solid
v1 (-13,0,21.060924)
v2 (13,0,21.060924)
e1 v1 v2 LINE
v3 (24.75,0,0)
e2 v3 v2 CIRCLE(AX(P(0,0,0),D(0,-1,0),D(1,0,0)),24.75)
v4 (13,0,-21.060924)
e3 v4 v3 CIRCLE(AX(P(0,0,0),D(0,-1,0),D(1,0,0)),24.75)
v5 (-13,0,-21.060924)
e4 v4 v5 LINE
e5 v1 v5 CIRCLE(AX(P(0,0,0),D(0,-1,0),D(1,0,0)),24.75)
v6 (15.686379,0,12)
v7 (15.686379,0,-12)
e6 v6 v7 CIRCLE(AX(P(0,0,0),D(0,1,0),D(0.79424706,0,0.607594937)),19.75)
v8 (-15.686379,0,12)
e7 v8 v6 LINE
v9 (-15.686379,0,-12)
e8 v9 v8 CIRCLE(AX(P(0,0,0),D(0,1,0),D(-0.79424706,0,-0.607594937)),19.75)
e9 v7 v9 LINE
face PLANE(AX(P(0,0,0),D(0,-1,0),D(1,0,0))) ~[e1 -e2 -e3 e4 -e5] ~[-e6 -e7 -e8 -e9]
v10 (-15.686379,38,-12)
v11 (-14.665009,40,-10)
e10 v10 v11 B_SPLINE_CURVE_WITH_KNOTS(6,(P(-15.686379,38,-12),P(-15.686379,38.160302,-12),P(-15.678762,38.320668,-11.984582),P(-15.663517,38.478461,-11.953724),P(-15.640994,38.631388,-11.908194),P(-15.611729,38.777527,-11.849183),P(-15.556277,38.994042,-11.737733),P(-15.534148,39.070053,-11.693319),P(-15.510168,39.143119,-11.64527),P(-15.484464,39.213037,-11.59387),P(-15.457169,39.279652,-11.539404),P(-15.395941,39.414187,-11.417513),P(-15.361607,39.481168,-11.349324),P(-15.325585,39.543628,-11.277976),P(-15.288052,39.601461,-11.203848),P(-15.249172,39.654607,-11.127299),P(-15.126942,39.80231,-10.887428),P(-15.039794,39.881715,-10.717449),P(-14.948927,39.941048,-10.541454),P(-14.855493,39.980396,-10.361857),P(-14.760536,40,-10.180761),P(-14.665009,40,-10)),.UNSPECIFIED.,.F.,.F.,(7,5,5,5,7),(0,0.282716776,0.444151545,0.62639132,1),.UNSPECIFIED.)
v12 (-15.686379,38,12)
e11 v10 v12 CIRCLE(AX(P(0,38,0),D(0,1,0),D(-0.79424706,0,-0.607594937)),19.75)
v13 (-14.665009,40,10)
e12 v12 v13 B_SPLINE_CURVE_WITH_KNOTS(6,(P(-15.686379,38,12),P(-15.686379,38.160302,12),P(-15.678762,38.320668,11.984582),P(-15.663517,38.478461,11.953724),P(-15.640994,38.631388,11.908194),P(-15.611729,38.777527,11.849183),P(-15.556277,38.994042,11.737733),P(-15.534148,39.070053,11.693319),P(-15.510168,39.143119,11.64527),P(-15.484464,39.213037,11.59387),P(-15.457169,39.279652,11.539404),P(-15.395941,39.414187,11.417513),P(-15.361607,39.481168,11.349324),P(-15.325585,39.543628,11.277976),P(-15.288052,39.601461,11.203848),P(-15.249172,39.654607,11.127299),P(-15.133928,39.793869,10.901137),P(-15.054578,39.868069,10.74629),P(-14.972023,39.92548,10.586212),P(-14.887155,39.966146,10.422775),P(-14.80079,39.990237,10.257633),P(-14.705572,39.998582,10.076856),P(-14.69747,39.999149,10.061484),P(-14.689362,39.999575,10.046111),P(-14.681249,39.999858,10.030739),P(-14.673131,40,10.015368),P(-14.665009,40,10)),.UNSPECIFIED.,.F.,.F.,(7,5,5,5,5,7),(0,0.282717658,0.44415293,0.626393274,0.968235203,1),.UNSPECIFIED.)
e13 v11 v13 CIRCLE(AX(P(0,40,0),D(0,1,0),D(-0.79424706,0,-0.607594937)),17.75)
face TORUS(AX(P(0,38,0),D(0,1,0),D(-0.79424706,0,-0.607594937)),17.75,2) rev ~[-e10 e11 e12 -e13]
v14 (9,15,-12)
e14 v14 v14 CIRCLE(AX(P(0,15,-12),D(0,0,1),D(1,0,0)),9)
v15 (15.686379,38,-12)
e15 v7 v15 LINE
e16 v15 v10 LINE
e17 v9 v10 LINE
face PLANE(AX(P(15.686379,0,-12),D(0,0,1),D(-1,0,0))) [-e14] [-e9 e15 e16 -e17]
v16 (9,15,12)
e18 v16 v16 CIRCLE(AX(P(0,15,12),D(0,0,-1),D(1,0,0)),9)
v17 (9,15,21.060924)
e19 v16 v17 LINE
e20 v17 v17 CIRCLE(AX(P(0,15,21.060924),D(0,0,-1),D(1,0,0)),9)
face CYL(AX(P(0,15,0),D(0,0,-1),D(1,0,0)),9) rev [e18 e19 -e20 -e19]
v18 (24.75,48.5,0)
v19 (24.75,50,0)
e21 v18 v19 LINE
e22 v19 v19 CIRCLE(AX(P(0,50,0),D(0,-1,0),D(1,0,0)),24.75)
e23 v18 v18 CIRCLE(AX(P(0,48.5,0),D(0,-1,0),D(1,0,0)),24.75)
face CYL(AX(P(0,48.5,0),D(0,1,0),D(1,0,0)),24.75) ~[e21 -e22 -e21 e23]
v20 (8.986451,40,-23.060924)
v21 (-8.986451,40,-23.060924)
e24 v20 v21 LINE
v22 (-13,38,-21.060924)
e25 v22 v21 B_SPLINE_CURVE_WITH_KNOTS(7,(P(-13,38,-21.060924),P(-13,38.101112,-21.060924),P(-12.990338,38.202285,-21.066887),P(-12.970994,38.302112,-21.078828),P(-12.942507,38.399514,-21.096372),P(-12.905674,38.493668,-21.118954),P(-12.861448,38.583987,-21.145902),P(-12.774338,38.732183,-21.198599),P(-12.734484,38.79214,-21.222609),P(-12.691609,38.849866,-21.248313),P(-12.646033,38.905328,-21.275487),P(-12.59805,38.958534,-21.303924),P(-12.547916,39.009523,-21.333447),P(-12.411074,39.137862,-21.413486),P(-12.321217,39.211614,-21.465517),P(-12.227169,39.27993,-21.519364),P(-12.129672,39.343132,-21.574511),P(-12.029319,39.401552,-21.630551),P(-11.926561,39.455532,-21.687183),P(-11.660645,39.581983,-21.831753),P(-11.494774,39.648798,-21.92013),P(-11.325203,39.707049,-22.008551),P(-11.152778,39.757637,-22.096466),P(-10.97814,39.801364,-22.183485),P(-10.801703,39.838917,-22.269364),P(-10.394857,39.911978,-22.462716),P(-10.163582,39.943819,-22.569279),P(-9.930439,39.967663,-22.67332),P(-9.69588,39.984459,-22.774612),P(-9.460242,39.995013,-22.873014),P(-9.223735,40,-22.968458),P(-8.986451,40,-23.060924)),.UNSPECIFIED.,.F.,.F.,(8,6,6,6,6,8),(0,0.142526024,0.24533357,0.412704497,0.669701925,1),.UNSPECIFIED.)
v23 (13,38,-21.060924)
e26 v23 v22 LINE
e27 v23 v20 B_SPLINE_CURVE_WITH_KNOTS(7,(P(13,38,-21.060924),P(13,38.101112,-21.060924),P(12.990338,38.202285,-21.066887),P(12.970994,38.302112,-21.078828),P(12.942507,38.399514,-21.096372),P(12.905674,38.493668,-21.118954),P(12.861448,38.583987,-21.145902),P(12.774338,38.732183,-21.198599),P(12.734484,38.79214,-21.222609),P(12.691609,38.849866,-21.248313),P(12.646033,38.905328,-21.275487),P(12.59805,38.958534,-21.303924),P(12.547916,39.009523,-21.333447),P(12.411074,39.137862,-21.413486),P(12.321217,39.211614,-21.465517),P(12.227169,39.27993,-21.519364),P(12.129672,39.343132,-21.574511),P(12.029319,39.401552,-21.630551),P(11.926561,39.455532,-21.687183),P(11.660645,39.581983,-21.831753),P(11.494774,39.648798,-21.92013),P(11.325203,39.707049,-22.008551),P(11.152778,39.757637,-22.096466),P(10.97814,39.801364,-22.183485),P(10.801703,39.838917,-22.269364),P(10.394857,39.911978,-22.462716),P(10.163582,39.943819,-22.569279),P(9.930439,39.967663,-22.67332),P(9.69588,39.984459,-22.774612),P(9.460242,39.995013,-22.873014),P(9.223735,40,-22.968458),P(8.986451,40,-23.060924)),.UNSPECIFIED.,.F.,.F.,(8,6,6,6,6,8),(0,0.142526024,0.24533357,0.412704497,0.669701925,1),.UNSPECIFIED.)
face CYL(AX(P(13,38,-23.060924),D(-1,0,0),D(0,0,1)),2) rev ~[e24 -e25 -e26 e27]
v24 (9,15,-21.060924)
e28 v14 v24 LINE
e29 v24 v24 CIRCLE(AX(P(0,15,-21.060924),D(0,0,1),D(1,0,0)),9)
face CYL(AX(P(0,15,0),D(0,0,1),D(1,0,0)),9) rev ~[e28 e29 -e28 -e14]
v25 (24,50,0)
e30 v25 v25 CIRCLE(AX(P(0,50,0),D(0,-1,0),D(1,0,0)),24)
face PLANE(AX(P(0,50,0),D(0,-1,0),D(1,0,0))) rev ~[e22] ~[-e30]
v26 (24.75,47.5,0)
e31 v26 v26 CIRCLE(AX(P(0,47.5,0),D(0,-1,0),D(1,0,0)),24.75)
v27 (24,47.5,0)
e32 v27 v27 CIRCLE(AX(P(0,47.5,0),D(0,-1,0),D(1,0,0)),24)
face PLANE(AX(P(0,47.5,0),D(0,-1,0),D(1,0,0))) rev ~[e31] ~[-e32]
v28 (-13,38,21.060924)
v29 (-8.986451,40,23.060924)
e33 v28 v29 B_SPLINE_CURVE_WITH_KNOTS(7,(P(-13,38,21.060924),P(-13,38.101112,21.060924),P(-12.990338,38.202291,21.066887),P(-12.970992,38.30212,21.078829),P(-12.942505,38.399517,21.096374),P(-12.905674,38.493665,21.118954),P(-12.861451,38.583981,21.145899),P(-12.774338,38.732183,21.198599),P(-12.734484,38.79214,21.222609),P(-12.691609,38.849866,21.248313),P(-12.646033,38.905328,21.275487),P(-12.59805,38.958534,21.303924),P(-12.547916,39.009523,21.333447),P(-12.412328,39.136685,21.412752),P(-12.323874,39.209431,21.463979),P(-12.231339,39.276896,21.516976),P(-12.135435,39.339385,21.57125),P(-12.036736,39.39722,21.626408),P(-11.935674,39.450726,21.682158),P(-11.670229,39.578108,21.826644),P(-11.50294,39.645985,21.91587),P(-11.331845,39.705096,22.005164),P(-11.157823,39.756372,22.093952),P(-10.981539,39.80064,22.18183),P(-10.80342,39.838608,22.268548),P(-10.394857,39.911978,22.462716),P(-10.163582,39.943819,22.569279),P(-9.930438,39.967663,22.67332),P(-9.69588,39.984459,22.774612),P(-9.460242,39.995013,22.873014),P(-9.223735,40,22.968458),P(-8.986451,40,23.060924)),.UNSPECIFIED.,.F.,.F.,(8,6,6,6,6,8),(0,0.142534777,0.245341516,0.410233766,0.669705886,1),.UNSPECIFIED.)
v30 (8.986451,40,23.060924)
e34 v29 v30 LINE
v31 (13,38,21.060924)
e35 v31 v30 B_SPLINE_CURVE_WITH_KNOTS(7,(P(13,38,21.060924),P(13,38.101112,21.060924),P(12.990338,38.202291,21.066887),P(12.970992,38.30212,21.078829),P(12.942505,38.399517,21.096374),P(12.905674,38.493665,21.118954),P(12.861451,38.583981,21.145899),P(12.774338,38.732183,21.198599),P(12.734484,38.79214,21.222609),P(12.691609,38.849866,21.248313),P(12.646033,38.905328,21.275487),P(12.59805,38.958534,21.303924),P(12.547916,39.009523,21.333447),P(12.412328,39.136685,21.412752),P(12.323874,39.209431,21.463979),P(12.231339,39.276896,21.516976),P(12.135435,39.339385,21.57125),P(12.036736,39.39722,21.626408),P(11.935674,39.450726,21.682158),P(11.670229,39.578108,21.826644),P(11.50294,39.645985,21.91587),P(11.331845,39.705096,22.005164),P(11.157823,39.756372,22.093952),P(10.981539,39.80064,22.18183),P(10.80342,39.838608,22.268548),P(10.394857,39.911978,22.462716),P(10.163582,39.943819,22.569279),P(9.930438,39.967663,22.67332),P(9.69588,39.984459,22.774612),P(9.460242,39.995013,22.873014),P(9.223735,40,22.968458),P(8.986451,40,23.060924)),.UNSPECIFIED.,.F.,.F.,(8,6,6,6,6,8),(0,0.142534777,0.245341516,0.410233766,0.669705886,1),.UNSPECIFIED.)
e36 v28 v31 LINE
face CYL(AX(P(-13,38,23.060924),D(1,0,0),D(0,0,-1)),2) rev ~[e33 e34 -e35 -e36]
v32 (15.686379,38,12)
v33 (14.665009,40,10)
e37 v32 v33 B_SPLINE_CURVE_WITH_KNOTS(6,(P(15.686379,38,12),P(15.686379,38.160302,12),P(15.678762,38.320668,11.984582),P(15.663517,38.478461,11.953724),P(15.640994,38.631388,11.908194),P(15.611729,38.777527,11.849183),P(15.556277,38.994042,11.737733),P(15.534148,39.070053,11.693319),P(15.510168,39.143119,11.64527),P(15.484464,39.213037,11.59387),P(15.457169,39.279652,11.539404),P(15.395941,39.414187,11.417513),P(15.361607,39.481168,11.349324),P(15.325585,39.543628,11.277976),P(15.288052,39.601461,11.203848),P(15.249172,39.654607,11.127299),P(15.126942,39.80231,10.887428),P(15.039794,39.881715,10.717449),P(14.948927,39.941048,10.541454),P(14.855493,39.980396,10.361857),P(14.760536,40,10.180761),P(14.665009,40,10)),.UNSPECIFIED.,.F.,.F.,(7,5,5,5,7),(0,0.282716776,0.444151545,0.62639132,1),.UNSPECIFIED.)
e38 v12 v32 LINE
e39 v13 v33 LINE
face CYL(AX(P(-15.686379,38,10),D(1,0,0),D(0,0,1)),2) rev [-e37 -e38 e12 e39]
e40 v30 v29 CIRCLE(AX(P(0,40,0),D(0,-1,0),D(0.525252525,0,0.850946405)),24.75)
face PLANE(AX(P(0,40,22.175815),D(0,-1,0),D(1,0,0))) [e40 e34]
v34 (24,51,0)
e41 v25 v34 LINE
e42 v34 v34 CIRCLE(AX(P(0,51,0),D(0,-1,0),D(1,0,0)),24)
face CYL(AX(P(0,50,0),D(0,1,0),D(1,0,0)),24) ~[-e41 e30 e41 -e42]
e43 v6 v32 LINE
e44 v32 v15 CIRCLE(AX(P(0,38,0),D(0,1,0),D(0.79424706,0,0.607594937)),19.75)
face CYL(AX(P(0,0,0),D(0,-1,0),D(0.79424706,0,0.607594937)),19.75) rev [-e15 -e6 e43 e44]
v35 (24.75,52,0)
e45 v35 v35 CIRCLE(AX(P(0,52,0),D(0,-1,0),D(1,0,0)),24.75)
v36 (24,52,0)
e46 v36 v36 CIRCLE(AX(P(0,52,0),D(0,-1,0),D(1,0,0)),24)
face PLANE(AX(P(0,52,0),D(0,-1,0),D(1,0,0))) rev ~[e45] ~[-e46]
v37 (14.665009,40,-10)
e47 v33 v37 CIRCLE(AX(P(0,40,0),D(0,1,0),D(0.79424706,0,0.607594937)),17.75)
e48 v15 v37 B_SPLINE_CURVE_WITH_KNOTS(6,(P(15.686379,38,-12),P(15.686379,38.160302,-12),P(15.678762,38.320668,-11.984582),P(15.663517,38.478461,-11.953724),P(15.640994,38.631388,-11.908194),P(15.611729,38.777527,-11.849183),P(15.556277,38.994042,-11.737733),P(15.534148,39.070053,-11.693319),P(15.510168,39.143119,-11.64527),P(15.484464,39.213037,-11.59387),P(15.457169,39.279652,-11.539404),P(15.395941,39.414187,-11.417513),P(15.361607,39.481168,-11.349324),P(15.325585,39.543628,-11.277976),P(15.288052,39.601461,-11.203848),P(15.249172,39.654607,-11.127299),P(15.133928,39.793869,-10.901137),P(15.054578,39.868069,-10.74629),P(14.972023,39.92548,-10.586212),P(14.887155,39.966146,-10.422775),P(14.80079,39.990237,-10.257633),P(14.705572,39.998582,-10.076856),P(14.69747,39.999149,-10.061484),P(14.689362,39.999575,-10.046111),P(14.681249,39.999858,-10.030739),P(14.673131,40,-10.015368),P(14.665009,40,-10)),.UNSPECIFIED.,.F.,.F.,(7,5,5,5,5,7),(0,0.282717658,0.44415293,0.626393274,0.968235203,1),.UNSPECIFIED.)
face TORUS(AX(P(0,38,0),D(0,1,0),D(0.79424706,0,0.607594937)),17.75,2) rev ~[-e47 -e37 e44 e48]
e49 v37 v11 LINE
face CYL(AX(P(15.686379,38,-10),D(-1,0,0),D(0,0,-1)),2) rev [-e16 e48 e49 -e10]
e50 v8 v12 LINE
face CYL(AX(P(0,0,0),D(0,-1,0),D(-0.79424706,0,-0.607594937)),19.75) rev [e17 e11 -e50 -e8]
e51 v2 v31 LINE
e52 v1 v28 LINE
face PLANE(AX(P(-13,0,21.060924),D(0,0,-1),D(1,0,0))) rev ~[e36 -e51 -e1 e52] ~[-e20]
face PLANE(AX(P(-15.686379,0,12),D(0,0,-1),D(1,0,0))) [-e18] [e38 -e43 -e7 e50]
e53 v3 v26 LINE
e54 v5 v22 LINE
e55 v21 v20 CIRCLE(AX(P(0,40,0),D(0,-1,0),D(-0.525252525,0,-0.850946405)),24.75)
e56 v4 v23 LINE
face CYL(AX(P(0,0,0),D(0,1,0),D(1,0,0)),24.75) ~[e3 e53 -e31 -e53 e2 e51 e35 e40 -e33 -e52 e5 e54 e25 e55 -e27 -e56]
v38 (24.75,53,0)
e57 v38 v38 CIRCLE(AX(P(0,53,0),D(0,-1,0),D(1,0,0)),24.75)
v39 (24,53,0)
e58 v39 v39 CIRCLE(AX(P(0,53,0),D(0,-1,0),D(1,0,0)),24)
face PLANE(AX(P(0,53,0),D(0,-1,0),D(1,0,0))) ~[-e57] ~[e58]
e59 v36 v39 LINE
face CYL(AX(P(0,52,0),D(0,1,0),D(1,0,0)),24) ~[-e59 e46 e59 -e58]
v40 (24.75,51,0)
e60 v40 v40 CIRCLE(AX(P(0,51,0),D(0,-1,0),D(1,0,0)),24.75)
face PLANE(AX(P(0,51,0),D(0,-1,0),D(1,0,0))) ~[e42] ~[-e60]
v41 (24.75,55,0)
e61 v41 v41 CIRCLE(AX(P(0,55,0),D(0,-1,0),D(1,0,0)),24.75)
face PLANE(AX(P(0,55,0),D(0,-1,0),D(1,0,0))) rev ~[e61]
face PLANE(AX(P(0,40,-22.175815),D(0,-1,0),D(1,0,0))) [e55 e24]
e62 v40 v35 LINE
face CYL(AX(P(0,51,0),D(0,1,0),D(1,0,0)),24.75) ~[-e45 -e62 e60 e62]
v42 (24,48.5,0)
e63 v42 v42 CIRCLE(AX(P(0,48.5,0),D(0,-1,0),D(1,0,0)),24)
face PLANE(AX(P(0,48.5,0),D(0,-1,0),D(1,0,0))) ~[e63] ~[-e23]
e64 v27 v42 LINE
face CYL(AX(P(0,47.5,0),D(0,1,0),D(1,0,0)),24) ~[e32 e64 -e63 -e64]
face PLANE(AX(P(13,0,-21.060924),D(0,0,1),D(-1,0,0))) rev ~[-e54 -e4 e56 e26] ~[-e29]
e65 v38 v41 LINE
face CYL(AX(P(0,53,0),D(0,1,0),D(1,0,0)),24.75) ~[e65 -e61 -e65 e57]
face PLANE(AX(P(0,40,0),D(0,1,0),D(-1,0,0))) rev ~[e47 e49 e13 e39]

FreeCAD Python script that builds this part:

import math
import FreeCAD as App
import Part
import Sketcher

V = App.Vector
Q = App.Units.Quantity


def edges_at(feature, points):
    """Names of the edges that pass closest to the given points."""
    edges = feature.Shape.Edges
    near = lambda p: min(range(len(edges)), key=lambda i: edges[i].distToShape(Part.Vertex(*p))[0])
    return sorted({f"Edge{near(p) + 1}" for p in points})

doc = App.newDocument("Part")
body = doc.addObject("PartDesign::Body", "Body")

sketch1 = body.newObject("Sketcher::SketchObject", "Sketch")
sketch1.AttachmentSupport = (doc.getObject("XY_Plane"), [""])
sketch1.MapMode = "FlatFace"
sketch1.addGeometry(Part.LineSegment(V(0, 0, 0), V(24.8, 0, 0)), False)
sketch1.addGeometry(Part.LineSegment(V(24.8, 0, 0), V(24.8, 47.5, 0)), False)
sketch1.addGeometry(Part.LineSegment(V(24.8, 47.5, 0), V(24, 47.5, 0)), False)
sketch1.addGeometry(Part.LineSegment(V(24, 47.5, 0), V(24, 48.5, 0)), False)
sketch1.addGeometry(Part.LineSegment(V(24, 48.5, 0), V(24.8, 48.5, 0)), False)
sketch1.addGeometry(Part.LineSegment(V(24.8, 48.5, 0), V(24.8, 50, 0)), False)
sketch1.addGeometry(Part.LineSegment(V(24.8, 50, 0), V(24, 50, 0)), False)
sketch1.addGeometry(Part.LineSegment(V(24, 50, 0), V(24, 51, 0)), False)
sketch1.addGeometry(Part.LineSegment(V(24, 51, 0), V(24.8, 51, 0)), False)
sketch1.addGeometry(Part.LineSegment(V(24.8, 51, 0), V(24.8, 52, 0)), False)
sketch1.addGeometry(Part.LineSegment(V(24.8, 52, 0), V(24, 52, 0)), False)
sketch1.addGeometry(Part.LineSegment(V(24, 52, 0), V(24, 53, 0)), False)
sketch1.addGeometry(Part.LineSegment(V(24, 53, 0), V(24.8, 53, 0)), False)
sketch1.addGeometry(Part.LineSegment(V(24.8, 53, 0), V(24.8, 55, 0)), False)
sketch1.addGeometry(Part.LineSegment(V(24.8, 55, 0), V(0, 55, 0)), False)
sketch1.addGeometry(Part.LineSegment(V(0, 55, 0), V(0, 0, 0)), False)
sketch1.addConstraint(Sketcher.Constraint("Coincident", 0, 2, 1, 1))
sketch1.addConstraint(Sketcher.Constraint("Coincident", 1, 2, 2, 1))
sketch1.addConstraint(Sketcher.Constraint("Coincident", 2, 2, 3, 1))
sketch1.addConstraint(Sketcher.Constraint("Coincident", 3, 2, 4, 1))
sketch1.addConstraint(Sketcher.Constraint("Coincident", 4, 2, 5, 1))
sketch1.addConstraint(Sketcher.Constraint("Coincident", 5, 2, 6, 1))
sketch1.addConstraint(Sketcher.Constraint("Coincident", 6, 2, 7, 1))
sketch1.addConstraint(Sketcher.Constraint("Coincident", 7, 2, 8, 1))
sketch1.addConstraint(Sketcher.Constraint("Coincident", 8, 2, 9, 1))
sketch1.addConstraint(Sketcher.Constraint("Coincident", 9, 2, 10, 1))
sketch1.addConstraint(Sketcher.Constraint("Coincident", 10, 2, 11, 1))
sketch1.addConstraint(Sketcher.Constraint("Coincident", 11, 2, 12, 1))
sketch1.addConstraint(Sketcher.Constraint("Coincident", 12, 2, 13, 1))
sketch1.addConstraint(Sketcher.Constraint("Coincident", 13, 2, 14, 1))
sketch1.addConstraint(Sketcher.Constraint("Coincident", 14, 2, 15, 1))
sketch1.addConstraint(Sketcher.Constraint("Coincident", 15, 2, 0, 1))
sketch1.addConstraint(Sketcher.Constraint("Horizontal", 0))
sketch1.addConstraint(Sketcher.Constraint("Vertical", 1))
sketch1.addConstraint(Sketcher.Constraint("Horizontal", 2))
sketch1.addConstraint(Sketcher.Constraint("Vertical", 3))
sketch1.addConstraint(Sketcher.Constraint("Horizontal", 4))
sketch1.addConstraint(Sketcher.Constraint("Vertical", 5))
sketch1.addConstraint(Sketcher.Constraint("Horizontal", 6))
sketch1.addConstraint(Sketcher.Constraint("Vertical", 7))
sketch1.addConstraint(Sketcher.Constraint("Horizontal", 8))
sketch1.addConstraint(Sketcher.Constraint("Vertical", 9))
sketch1.addConstraint(Sketcher.Constraint("Horizontal", 10))
sketch1.addConstraint(Sketcher.Constraint("Vertical", 11))
sketch1.addConstraint(Sketcher.Constraint("Horizontal", 12))
sketch1.addConstraint(Sketcher.Constraint("Vertical", 13))
sketch1.addConstraint(Sketcher.Constraint("Horizontal", 14))
sketch1.addConstraint(Sketcher.Constraint("Vertical", 15))
sketch1.addConstraint(Sketcher.Constraint("Coincident", 15, 2, -1, 1))
sketch1.addConstraint(Sketcher.Constraint("Vertical", 1, 2, 4, 2))
sketch1.addConstraint(Sketcher.Constraint("Vertical", 3, 2, 6, 2))
sketch1.addConstraint(Sketcher.Constraint("Vertical", 5, 2, 8, 2))
sketch1.addConstraint(Sketcher.Constraint("Vertical", 7, 2, 10, 2))
sketch1.addConstraint(Sketcher.Constraint("Vertical", 9, 2, 12, 2))
sketch1.addConstraint(Sketcher.Constraint("Equal", 3, 7))
sketch1.addConstraint(Sketcher.Constraint("Equal", 7, 9))
sketch1.addConstraint(Sketcher.Constraint("Equal", 9, 11))
sketch1.addConstraint(Sketcher.Constraint("DistanceY", 3, 1, 3, 2, Q("1 mm")))
sketch1.addConstraint(Sketcher.Constraint("DistanceY", 13, 1, 13, 2, Q("2 mm")))
sketch1.addConstraint(Sketcher.Constraint("DistanceY", 15, 2, 15, 1, Q("55 mm")))
sketch1.addConstraint(Sketcher.Constraint("DistanceY", 1, 1, 1, 2, Q("47.5 mm")))
sketch1.addConstraint(Sketcher.Constraint("DistanceX", -1, 1, 2, 2, Q("24 mm")))
sketch1.addConstraint(Sketcher.Constraint("DistanceX", 0, 1, 0, 2, Q("24.75 mm")))
revolution = body.newObject("PartDesign::Revolution", "Revolution")
revolution.Profile = sketch1
revolution.ReferenceAxis = (sketch1, ["V_Axis"])
revolution.Angle = 360

sketch2 = body.newObject("Sketcher::SketchObject", "Sketch001")
sketch2.AttachmentSupport = (doc.getObject("XY_Plane"), [""])
sketch2.MapMode = "FlatFace"
sketch2.addGeometry(Part.Circle(V(0, 15, 0), V(0, 0, 1), 9), False)
sketch2.addConstraint(Sketcher.Constraint("PointOnObject", 0, 3, -2))
sketch2.addConstraint(Sketcher.Constraint("Diameter", 0, Q("18 mm")))
sketch2.addConstraint(Sketcher.Constraint("DistanceY", -1, 1, 0, 3, Q("15 mm")))
pocket1 = body.newObject("PartDesign::Pocket", "Pocket")
pocket1.Profile = sketch2
pocket1.Type = "ThroughAll"
pocket1.Midplane = True

sketch3 = body.newObject("Sketcher::SketchObject", "Sketch002")
sketch3.AttachmentSupport = (doc.getObject("XZ_Plane"), [""])
sketch3.MapMode = "FlatFace"
sketch3.addGeometry(Part.LineSegment(V(-13, 21, 0), V(13, 21, 0)), False)
sketch3.addGeometry(Part.ArcOfCircle(Part.Circle(V(0, 0, 0), V(0, 0, 1), 25), math.radians(58), math.radians(122)), False)
sketch3.addGeometry(Part.ArcOfCircle(Part.Circle(V(0, 0, 0), V(0, 0, 1), 20), math.radians(-37), math.radians(37)), False)
sketch3.addGeometry(Part.LineSegment(V(16, 12, 0), V(-16, 12, 0)), False)
sketch3.addGeometry(Part.ArcOfCircle(Part.Circle(V(0, 0, 0), V(0, 0, 1), 20), math.radians(143), math.radians(217)), False)
sketch3.addGeometry(Part.LineSegment(V(-16, -12, 0), V(16, -12, 0)), False)
sketch3.addGeometry(Part.LineSegment(V(13, -21, 0), V(-13, -21, 0)), False)
sketch3.addGeometry(Part.ArcOfCircle(Part.Circle(V(0, 0, 0), V(0, 0, 1), 25), math.radians(-122), math.radians(-58)), False)
sketch3.addConstraint(Sketcher.Constraint("Coincident", 0, 1, 1, 2))
sketch3.addConstraint(Sketcher.Constraint("Coincident", 1, 1, 0, 2))
sketch3.addConstraint(Sketcher.Constraint("Coincident", 2, 2, 3, 1))
sketch3.addConstraint(Sketcher.Constraint("Coincident", 3, 2, 4, 1))
sketch3.addConstraint(Sketcher.Constraint("Coincident", 4, 2, 5, 1))
sketch3.addConstraint(Sketcher.Constraint("Coincident", 5, 2, 2, 1))
sketch3.addConstraint(Sketcher.Constraint("Coincident", 6, 1, 7, 2))
sketch3.addConstraint(Sketcher.Constraint("Coincident", 7, 1, 6, 2))
sketch3.addConstraint(Sketcher.Constraint("Horizontal", 0))
sketch3.addConstraint(Sketcher.Constraint("Horizontal", 3))
sketch3.addConstraint(Sketcher.Constraint("Horizontal", 5))
sketch3.addConstraint(Sketcher.Constraint("Horizontal", 6))
sketch3.addConstraint(Sketcher.Constraint("Coincident", 1, 3, -1, 1))
sketch3.addConstraint(Sketcher.Constraint("Coincident", 2, 3, -1, 1))
sketch3.addConstraint(Sketcher.Constraint("Coincident", 4, 3, -1, 1))
sketch3.addConstraint(Sketcher.Constraint("Coincident", 7, 3, -1, 1))
sketch3.addConstraint(Sketcher.Constraint("Equal", 2, 4))
sketch3.addConstraint(Sketcher.Constraint("Equal", 1, 7))
sketch3.addConstraint(Sketcher.Constraint("Vertical", 3, 2, 4, 2))
sketch3.addConstraint(Sketcher.Constraint("Vertical", 1, 1, 6, 1))
sketch3.addConstraint(Sketcher.Constraint("DistanceX", 0, 1, 0, 2, Q("26 mm")))
sketch3.addConstraint(Sketcher.Constraint("Radius", 1, Q("24.75 mm")))
sketch3.addConstraint(Sketcher.Constraint("Radius", 2, Q("19.75 mm")))
sketch3.addConstraint(Sketcher.Constraint("DistanceY", -1, 1, 2, 2, Q("12 mm")))
pocket2 = body.newObject("PartDesign::Pocket", "Pocket001")
pocket2.Profile = sketch3
pocket2.Length = 40
doc.recompute()

fillet = body.newObject("PartDesign::Fillet", "Fillet")
fillet.Base = (pocket2, edges_at(pocket2, [
    (0, 40, 21.061),
    (0, 40, -12),
    (0, 40, 12),
    (19.75, 40, 0),
    (-19.75, 40, 0),
    (0, 40, -21.061),
]))
fillet.Radius = 2

doc.recompute()
